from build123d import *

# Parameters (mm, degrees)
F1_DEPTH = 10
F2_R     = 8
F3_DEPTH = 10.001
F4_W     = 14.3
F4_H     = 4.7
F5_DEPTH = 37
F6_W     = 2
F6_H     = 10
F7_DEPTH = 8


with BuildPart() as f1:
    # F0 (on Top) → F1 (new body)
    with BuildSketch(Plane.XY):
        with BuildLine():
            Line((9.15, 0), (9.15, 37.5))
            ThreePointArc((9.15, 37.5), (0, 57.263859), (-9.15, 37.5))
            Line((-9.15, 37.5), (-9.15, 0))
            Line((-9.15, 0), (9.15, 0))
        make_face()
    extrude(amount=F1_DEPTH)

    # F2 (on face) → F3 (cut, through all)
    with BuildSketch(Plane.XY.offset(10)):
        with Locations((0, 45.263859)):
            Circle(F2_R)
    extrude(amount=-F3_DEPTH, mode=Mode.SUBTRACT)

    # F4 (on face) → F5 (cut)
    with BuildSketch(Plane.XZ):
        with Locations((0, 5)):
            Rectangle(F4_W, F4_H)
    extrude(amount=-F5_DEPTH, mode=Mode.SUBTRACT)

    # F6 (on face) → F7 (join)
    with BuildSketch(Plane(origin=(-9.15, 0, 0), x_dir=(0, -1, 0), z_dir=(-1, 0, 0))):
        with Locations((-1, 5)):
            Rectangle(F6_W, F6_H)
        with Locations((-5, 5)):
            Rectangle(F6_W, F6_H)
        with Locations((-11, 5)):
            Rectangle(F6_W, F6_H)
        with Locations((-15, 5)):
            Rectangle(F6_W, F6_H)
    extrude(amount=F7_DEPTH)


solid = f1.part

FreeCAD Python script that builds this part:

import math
import FreeCAD as App
import Part
import Sketcher

V = App.Vector
Q = App.Units.Quantity

doc = App.newDocument("Part")
body = doc.addObject("PartDesign::Body", "Body")

# Sketch on XY plane
sketch1 = doc.addObject("Sketcher::SketchObject", "Sketch")
body.addObject(sketch1)
sketch1.AttachmentSupport = (doc.XY_Plane, [""])
sketch1.MapMode = "FlatFace"
sketch1.addGeometry(Part.LineSegment(V(9, 0, 0), V(9, 38, 0)), False)
sketch1.addGeometry(Part.ArcOfCircle(Part.Circle(V(0, 45, 0), V(0, 0, 1), 12), math.radians(-40), math.radians(220)), False)
sketch1.addGeometry(Part.LineSegment(V(-9, 38, 0), V(-9, 0, 0)), False)
sketch1.addGeometry(Part.LineSegment(V(-9, 0, 0), V(9, 0, 0)), False)
sketch1.addConstraint(Sketcher.Constraint("Coincident", 0, 2, 1, 1))
sketch1.addConstraint(Sketcher.Constraint("Coincident", 1, 2, 2, 1))
sketch1.addConstraint(Sketcher.Constraint("Coincident", 2, 2, 3, 1))
sketch1.addConstraint(Sketcher.Constraint("Coincident", 3, 2, 0, 1))
sketch1.addConstraint(Sketcher.Constraint("Vertical", 0))
sketch1.addConstraint(Sketcher.Constraint("Vertical", 2))
sketch1.addConstraint(Sketcher.Constraint("Horizontal", 3))
sketch1.addConstraint(Sketcher.Constraint("Symmetric", 2, 2, 3, 2, -1, 1))
sketch1.addConstraint(Sketcher.Constraint("PointOnObject", 1, 3, -2))
sketch1.addConstraint(Sketcher.Constraint("Radius", 1, Q("12 mm")))
sketch1.addConstraint(Sketcher.Constraint("DistanceX", 3, 1, 3, 2, Q("18.3 mm")))
sketch1.addConstraint(Sketcher.Constraint("DistanceY", 0, 1, 0, 2, Q("37.5 mm")))
pad1 = doc.addObject("PartDesign::Pad", "Pad")
body.addObject(pad1)
pad1.Profile = sketch1
pad1.Length = 10

# Sketch on XY plane
sketch2 = doc.addObject("Sketcher::SketchObject", "Sketch001")
body.addObject(sketch2)
sketch2.AttachmentSupport = (doc.XY_Plane, [""])
sketch2.MapMode = "FlatFace"
sketch2.AttachmentOffset = App.Placement(V(0, 0, 10), App.Rotation())
sketch2.addGeometry(Part.Circle(V(0, 45, 0), V(0, 0, 1), 8), False)
sketch2.addConstraint(Sketcher.Constraint("PointOnObject", 0, 3, -2))
sketch2.addConstraint(Sketcher.Constraint("Diameter", 0, Q("16 mm")))
sketch2.addConstraint(Sketcher.Constraint("DistanceY", -1, 1, 0, 3, Q("45.263859 mm")))
pocket1 = doc.addObject("PartDesign::Pocket", "Pocket")
body.addObject(pocket1)
pocket1.Profile = sketch2
pocket1.Type = "ThroughAll"

# Sketch on XZ plane
sketch3 = doc.addObject("Sketcher::SketchObject", "Sketch002")
body.addObject(sketch3)
sketch3.AttachmentSupport = (doc.XZ_Plane, [""])
sketch3.MapMode = "FlatFace"
sketch3.addGeometry(Part.LineSegment(V(-7.2, 7.3, 0), V(-7.2, 2.6, 0)), False)
sketch3.addGeometry(Part.LineSegment(V(-7.2, 2.6, 0), V(7.2, 2.6, 0)), False)
sketch3.addGeometry(Part.LineSegment(V(7.2, 2.6, 0), V(7.2, 7.3, 0)), False)
sketch3.addGeometry(Part.LineSegment(V(7.2, 7.3, 0), V(-7.2, 7.3, 0)), False)
sketch3.addConstraint(Sketcher.Constraint("Coincident", 0, 2, 1, 1))
sketch3.addConstraint(Sketcher.Constraint("Coincident", 1, 2, 2, 1))
sketch3.addConstraint(Sketcher.Constraint("Coincident", 2, 2, 3, 1))
sketch3.addConstraint(Sketcher.Constraint("Coincident", 3, 2, 0, 1))
sketch3.addConstraint(Sketcher.Constraint("Vertical", 0))
sketch3.addConstraint(Sketcher.Constraint("Horizontal", 1))
sketch3.addConstraint(Sketcher.Constraint("Vertical", 2))
sketch3.addConstraint(Sketcher.Constraint("Horizontal", 3))
sketch3.addConstraint(Sketcher.Constraint("DistanceX", 1, 1, 1, 2, Q("14.3 mm")))
sketch3.addConstraint(Sketcher.Constraint("DistanceY", 0, 2, 0, 1, Q("4.7 mm")))
sketch3.addConstraint(Sketcher.Constraint("DistanceX", 0, 2, -1, 1, Q("7.15 mm")))
sketch3.addConstraint(Sketcher.Constraint("DistanceY", -1, 1, 0, 2, Q("2.65 mm")))
pocket2 = doc.addObject("PartDesign::Pocket", "Pocket001")
body.addObject(pocket2)
pocket2.Profile = sketch3
pocket2.Length = 37

# Sketch on YZ plane
sketch4 = doc.addObject("Sketcher::SketchObject", "Sketch003")
body.addObject(sketch4)
sketch4.AttachmentSupport = (doc.YZ_Plane, [""])
sketch4.MapMode = "FlatFace"
sketch4.AttachmentOffset = App.Placement(V(0, 0, -9.15), App.Rotation())
sketch4.addGeometry(Part.LineSegment(V(2, 10, 0), V(2, 0, 0)), False)
sketch4.addGeometry(Part.LineSegment(V(2, 0, 0), V(0, 0, 0)), False)
sketch4.addGeometry(Part.LineSegment(V(0, 0, 0), V(0, 10, 0)), False)
sketch4.addGeometry(Part.LineSegment(V(0, 10, 0), V(2, 10, 0)), False)
sketch4.addGeometry(Part.LineSegment(V(6, 10, 0), V(6, 0, 0)), False)
sketch4.addGeometry(Part.LineSegment(V(6, 0, 0), V(4, 0, 0)), False)
sketch4.addGeometry(Part.LineSegment(V(4, 0, 0), V(4, 10, 0)), False)
sketch4.addGeometry(Part.LineSegment(V(4, 10, 0), V(6, 10, 0)), False)
sketch4.addGeometry(Part.LineSegment(V(12, 10, 0), V(12, 0, 0)), False)
sketch4.addGeometry(Part.LineSegment(V(12, 0, 0), V(10, 0, 0)), False)
sketch4.addGeometry(Part.LineSegment(V(10, 0, 0), V(10, 10, 0)), False)
sketch4.addGeometry(Part.LineSegment(V(10, 10, 0), V(12, 10, 0)), False)
sketch4.addGeometry(Part.LineSegment(V(16, 10, 0), V(16, 0, 0)), False)
sketch4.addGeometry(Part.LineSegment(V(16, 0, 0), V(14, 0, 0)), False)
sketch4.addGeometry(Part.LineSegment(V(14, 0, 0), V(14, 10, 0)), False)
sketch4.addGeometry(Part.LineSegment(V(14, 10, 0), V(16, 10, 0)), False)
sketch4.addConstraint(Sketcher.Constraint("Coincident", 0, 2, 1, 1))
sketch4.addConstraint(Sketcher.Constraint("Coincident", 1, 2, 2, 1))
sketch4.addConstraint(Sketcher.Constraint("Coincident", 2, 2, 3, 1))
sketch4.addConstraint(Sketcher.Constraint("Coincident", 3, 2, 0, 1))
sketch4.addConstraint(Sketcher.Constraint("Coincident", 4, 2, 5, 1))
sketch4.addConstraint(Sketcher.Constraint("Coincident", 5, 2, 6, 1))
sketch4.addConstraint(Sketcher.Constraint("Coincident", 6, 2, 7, 1))
sketch4.addConstraint(Sketcher.Constraint("Coincident", 7, 2, 4, 1))
sketch4.addConstraint(Sketcher.Constraint("Coincident", 8, 2, 9, 1))
sketch4.addConstraint(Sketcher.Constraint("Coincident", 9, 2, 10, 1))
sketch4.addConstraint(Sketcher.Constraint("Coincident", 10, 2, 11, 1))
sketch4.addConstraint(Sketcher.Constraint("Coincident", 11, 2, 8, 1))
sketch4.addConstraint(Sketcher.Constraint("Coincident", 12, 2, 13, 1))
sketch4.addConstraint(Sketcher.Constraint("Coincident", 13, 2, 14, 1))
sketch4.addConstraint(Sketcher.Constraint("Coincident", 14, 2, 15, 1))
sketch4.addConstraint(Sketcher.Constraint("Coincident", 15, 2, 12, 1))
sketch4.addConstraint(Sketcher.Constraint("Vertical", 0))
sketch4.addConstraint(Sketcher.Constraint("Horizontal", 1))
sketch4.addConstraint(Sketcher.Constraint("Vertical", 2))
sketch4.addConstraint(Sketcher.Constraint("Horizontal", 3))
sketch4.addConstraint(Sketcher.Constraint("Vertical", 4))
sketch4.addConstraint(Sketcher.Constraint("Horizontal", 5))
sketch4.addConstraint(Sketcher.Constraint("Vertical", 6))
sketch4.addConstraint(Sketcher.Constraint("Horizontal", 7))
sketch4.addConstraint(Sketcher.Constraint("Vertical", 8))
sketch4.addConstraint(Sketcher.Constraint("Horizontal", 9))
sketch4.addConstraint(Sketcher.Constraint("Vertical", 10))
sketch4.addConstraint(Sketcher.Constraint("Horizontal", 11))
sketch4.addConstraint(Sketcher.Constraint("Vertical", 12))
sketch4.addConstraint(Sketcher.Constraint("Horizontal", 13))
sketch4.addConstraint(Sketcher.Constraint("Vertical", 14))
sketch4.addConstraint(Sketcher.Constraint("Horizontal", 15))
sketch4.addConstraint(Sketcher.Constraint("Coincident", 1, 2, -1, 1))
sketch4.addConstraint(Sketcher.Constraint("PointOnObject", 4, 2, -1))
sketch4.addConstraint(Sketcher.Constraint("PointOnObject", 8, 2, -1))
sketch4.addConstraint(Sketcher.Constraint("PointOnObject", 12, 2, -1))
sketch4.addConstraint(Sketcher.Constraint("Horizontal", 3, 2, 6, 2))
sketch4.addConstraint(Sketcher.Constraint("Horizontal", 7, 2, 10, 2))
sketch4.addConstraint(Sketcher.Constraint("Horizontal", 11, 2, 14, 2))
sketch4.addConstraint(Sketcher.Constraint("Equal", 3, 5))
sketch4.addConstraint(Sketcher.Constraint("Equal", 7, 9))
sketch4.addConstraint(Sketcher.Constraint("Equal", 11, 13))
sketch4.addConstraint(Sketcher.Constraint("DistanceX", 1, 2, 1, 1, Q("2 mm")))
sketch4.addConstraint(Sketcher.Constraint("DistanceY", 0, 2, 0, 1, Q("10 mm")))
sketch4.addConstraint(Sketcher.Constraint("DistanceX", -1, 1, 4, 2, Q("6 mm")))
sketch4.addConstraint(Sketcher.Constraint("DistanceX", -1, 1, 8, 2, Q("12 mm")))
sketch4.addConstraint(Sketcher.Constraint("DistanceX", -1, 1, 12, 2, Q("16 mm")))
pad2 = doc.addObject("PartDesign::Pad", "Pad001")
body.addObject(pad2)
pad2.Profile = sketch4
pad2.Length = 8
pad2.Reversed = True

doc.recompute()
